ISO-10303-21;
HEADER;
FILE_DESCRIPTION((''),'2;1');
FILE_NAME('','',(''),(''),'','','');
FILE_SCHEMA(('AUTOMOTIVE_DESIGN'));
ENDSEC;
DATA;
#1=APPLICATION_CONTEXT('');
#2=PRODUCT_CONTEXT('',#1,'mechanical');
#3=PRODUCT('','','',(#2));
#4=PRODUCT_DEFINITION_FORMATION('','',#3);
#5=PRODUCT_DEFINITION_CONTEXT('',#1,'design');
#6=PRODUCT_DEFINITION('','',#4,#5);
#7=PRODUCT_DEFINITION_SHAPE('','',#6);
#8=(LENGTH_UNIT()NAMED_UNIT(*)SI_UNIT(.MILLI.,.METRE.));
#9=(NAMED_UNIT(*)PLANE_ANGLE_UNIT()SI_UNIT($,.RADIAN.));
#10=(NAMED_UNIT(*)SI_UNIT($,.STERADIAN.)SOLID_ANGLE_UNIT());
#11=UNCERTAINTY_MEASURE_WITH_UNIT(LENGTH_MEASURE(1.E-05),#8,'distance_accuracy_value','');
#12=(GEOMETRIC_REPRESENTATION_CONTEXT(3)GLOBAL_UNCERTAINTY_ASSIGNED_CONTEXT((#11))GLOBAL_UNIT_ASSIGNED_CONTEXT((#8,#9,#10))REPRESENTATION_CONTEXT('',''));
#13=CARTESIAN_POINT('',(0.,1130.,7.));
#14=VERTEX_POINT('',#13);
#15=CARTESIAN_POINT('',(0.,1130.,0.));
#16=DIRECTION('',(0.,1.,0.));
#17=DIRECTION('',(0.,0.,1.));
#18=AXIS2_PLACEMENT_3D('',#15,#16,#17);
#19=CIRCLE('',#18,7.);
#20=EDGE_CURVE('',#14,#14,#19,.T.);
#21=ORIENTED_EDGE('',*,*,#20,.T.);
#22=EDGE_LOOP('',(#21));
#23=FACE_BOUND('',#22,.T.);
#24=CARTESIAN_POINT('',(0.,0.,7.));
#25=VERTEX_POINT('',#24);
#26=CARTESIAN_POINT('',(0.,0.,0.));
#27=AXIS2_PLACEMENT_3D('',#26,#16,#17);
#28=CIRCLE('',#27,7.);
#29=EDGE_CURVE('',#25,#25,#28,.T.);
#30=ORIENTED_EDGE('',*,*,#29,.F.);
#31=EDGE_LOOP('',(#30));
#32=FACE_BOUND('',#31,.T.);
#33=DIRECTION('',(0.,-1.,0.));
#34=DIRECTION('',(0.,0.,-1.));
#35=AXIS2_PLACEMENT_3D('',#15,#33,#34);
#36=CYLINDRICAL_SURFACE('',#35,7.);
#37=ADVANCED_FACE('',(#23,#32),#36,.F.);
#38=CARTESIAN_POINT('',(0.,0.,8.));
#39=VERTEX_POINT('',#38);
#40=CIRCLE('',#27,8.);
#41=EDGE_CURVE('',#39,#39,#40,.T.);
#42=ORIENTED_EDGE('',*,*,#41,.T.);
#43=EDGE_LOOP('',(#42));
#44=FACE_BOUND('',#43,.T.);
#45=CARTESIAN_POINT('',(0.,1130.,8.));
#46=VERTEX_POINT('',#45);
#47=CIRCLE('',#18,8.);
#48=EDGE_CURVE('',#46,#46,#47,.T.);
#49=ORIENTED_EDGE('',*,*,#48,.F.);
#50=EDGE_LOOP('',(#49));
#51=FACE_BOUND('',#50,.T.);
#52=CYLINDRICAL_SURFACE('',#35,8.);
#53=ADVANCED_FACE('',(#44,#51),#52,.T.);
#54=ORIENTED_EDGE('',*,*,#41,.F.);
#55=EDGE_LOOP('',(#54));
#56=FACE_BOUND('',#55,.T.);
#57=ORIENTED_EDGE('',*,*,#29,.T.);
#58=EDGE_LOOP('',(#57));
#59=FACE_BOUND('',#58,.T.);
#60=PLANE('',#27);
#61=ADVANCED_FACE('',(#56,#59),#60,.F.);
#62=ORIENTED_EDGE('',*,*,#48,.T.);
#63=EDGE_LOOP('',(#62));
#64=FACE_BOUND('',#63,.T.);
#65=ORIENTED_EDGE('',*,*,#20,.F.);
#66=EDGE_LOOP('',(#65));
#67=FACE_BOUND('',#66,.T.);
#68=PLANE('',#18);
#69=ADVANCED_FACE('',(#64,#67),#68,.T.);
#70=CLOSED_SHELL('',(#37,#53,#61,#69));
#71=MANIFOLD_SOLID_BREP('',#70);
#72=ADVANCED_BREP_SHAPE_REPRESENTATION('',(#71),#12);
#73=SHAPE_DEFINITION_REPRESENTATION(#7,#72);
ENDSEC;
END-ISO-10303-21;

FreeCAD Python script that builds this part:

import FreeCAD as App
import Part
import Sketcher
Q = App.Units.Quantity

doc = App.newDocument("Part")
body = doc.addObject("PartDesign::Body", "Body")

# Sketch on XZ plane
sketch1 = body.newObject("Sketcher::SketchObject", "Sketch")
sketch1.AttachmentSupport = (doc.getObject("XZ_Plane"), [""])
sketch1.MapMode = "FlatFace"
sketch1.addGeometry([
    Part.Circle(App.Vector(0, 0, 0), App.Vector(0, 0, 1), 8),
    Part.Circle(App.Vector(0, 0, 0), App.Vector(0, 0, 1), 7),
], False)
sketch1.addConstraint([
    Sketcher.Constraint("Coincident", 0, 3, -1, 1),
    Sketcher.Constraint("Coincident", 1, 3, -1, 1),
    Sketcher.Constraint("Diameter", 0, Q("16 mm")),
    Sketcher.Constraint("Diameter", 1, Q("14 mm")),
])
pad1 = body.newObject("PartDesign::Pad", "Pad")
pad1.Profile = sketch1
pad1.Length = 1130
pad1.Reversed = True

doc.recompute()
